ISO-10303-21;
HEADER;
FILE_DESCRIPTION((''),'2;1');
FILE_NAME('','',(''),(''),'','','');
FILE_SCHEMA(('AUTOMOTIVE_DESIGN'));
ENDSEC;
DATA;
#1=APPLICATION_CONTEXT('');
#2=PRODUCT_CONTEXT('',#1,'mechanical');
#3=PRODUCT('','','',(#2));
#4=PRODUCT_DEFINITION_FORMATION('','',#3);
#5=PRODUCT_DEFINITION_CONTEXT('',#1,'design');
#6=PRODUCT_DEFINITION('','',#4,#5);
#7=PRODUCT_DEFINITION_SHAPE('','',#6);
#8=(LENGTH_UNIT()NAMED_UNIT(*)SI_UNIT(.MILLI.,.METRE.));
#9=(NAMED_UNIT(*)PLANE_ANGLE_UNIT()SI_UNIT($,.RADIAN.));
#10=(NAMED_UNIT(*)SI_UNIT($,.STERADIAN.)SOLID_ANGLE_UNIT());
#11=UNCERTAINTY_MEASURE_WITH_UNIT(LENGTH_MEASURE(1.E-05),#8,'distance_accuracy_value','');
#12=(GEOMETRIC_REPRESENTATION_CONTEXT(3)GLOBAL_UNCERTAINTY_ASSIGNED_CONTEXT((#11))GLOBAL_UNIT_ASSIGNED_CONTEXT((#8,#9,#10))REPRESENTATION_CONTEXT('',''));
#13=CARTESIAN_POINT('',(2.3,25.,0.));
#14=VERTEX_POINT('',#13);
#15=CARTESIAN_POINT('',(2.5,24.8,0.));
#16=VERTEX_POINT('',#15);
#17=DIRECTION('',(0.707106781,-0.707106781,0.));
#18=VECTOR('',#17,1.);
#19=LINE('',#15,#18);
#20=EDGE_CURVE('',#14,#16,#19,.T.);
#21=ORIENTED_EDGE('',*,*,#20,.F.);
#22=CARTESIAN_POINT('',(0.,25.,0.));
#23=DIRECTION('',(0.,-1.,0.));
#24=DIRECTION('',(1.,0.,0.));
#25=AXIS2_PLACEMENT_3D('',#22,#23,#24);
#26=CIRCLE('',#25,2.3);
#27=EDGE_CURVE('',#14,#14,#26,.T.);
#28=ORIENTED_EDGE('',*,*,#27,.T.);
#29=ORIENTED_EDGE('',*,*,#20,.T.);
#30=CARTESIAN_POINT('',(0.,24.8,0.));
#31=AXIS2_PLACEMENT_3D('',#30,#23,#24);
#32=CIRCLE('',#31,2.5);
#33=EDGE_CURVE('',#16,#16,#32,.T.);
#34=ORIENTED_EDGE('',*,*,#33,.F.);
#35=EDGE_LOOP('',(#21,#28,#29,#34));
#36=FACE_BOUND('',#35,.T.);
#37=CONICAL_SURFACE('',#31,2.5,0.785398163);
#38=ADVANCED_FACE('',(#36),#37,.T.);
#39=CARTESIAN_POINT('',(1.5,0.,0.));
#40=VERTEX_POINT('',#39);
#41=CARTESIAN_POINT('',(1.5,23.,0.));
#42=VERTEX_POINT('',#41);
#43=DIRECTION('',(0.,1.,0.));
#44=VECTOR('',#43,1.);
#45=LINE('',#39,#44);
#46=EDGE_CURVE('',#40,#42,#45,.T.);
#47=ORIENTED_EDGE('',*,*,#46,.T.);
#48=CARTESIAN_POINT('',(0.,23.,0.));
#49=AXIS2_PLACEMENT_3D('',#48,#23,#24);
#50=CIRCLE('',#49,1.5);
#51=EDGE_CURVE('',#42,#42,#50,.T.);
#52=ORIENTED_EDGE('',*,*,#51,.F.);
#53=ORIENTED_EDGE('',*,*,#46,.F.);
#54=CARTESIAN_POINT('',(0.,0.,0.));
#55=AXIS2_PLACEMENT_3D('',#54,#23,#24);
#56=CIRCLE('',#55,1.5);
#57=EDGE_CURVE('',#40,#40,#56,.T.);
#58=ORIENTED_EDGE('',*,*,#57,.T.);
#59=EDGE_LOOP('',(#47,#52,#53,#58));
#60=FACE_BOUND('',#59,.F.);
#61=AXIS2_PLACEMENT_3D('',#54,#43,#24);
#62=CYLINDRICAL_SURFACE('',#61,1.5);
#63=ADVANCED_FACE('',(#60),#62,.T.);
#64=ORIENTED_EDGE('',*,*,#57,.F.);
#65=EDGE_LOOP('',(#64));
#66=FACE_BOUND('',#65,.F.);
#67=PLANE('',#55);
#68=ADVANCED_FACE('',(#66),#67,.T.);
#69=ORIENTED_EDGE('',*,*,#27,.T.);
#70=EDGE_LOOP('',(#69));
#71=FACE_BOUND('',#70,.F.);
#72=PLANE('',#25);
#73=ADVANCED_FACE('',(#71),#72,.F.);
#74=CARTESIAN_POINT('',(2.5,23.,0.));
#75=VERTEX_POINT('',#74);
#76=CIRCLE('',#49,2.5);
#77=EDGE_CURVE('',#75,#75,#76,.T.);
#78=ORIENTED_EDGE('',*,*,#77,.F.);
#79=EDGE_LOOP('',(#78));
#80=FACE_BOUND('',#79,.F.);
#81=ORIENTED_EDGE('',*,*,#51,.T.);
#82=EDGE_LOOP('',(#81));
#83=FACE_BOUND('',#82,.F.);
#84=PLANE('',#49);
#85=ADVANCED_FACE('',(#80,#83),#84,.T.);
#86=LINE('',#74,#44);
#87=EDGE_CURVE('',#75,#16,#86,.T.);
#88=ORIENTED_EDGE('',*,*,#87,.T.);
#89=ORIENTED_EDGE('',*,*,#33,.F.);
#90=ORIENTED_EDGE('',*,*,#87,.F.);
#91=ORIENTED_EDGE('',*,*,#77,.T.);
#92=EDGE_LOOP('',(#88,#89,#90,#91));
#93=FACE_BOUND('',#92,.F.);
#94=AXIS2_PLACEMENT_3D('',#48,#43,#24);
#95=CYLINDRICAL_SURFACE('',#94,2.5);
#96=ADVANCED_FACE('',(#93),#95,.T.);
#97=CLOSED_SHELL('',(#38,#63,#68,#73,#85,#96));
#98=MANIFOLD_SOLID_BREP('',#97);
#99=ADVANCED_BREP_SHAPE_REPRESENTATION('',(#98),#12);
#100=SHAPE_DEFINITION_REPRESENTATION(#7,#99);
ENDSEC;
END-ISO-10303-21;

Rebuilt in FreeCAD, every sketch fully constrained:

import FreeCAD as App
import Part
import Sketcher


def edges_at(feature, points):
    """Names of the edges that pass closest to the given points."""
    edges = feature.Shape.Edges
    near = lambda p: min(range(len(edges)), key=lambda i: edges[i].distToShape(Part.Vertex(*p))[0])
    return sorted({f"Edge{near(p) + 1}" for p in points})


def add_polygon(sketch, points):
    """Adds a closed chain of lines whose ends are joined by coincident constraints."""
    first, n = sketch.GeometryCount, len(points)
    for a, b in zip(points, points[1:] + points[:1]):
        sketch.addGeometry(Part.LineSegment(App.Vector(*a, 0), App.Vector(*b, 0)), False)
    for i in range(n):
        sketch.addConstraint(Sketcher.Constraint("Coincident", first + i, 2, first + (i + 1) % n, 1))

doc = App.newDocument("Part")
body = doc.addObject("PartDesign::Body", "Body")

# Sketch on XY plane
sketch1 = body.newObject("Sketcher::SketchObject", "Sketch")
sketch1.AttachmentSupport = (doc.getObject("XY_Plane"), [""])
sketch1.MapMode = "FlatFace"
add_polygon(sketch1, [(0, 25), (0, 0), (1.5, 0), (1.5, 23), (2.5, 23), (2.5, 25)])  # lines 0-5
sketch1.addConstraint(Sketcher.Constraint("Vertical", 0))
sketch1.addConstraint(Sketcher.Constraint("Horizontal", 1))
sketch1.addConstraint(Sketcher.Constraint("Vertical", 2))
sketch1.addConstraint(Sketcher.Constraint("Horizontal", 3))
sketch1.addConstraint(Sketcher.Constraint("Vertical", 4))
sketch1.addConstraint(Sketcher.Constraint("Horizontal", 5))
sketch1.addConstraint(Sketcher.Constraint("Coincident", 0, 2, -1, 1))
sketch1.addConstraint(Sketcher.Constraint("DistanceY", 2, 1, 2, 2, 23.0))
sketch1.addConstraint(Sketcher.Constraint("DistanceY", 4, 1, 4, 2, 2.0))
sketch1.addConstraint(Sketcher.Constraint("DistanceX", 3, 1, 3, 2, 1.0))
sketch1.addConstraint(Sketcher.Constraint("DistanceX", 1, 1, 1, 2, 1.5))
revolution = body.newObject("PartDesign::Revolution", "Revolution")
revolution.Profile = sketch1
revolution.ReferenceAxis = (sketch1, ["V_Axis"])
revolution.Angle = 360
doc.recompute()

chamfer = body.newObject("PartDesign::Chamfer", "Chamfer")
chamfer.Base = (revolution, edges_at(revolution, [(-2.5, 25, 0)]))
chamfer.Size = 0.2

doc.recompute()
